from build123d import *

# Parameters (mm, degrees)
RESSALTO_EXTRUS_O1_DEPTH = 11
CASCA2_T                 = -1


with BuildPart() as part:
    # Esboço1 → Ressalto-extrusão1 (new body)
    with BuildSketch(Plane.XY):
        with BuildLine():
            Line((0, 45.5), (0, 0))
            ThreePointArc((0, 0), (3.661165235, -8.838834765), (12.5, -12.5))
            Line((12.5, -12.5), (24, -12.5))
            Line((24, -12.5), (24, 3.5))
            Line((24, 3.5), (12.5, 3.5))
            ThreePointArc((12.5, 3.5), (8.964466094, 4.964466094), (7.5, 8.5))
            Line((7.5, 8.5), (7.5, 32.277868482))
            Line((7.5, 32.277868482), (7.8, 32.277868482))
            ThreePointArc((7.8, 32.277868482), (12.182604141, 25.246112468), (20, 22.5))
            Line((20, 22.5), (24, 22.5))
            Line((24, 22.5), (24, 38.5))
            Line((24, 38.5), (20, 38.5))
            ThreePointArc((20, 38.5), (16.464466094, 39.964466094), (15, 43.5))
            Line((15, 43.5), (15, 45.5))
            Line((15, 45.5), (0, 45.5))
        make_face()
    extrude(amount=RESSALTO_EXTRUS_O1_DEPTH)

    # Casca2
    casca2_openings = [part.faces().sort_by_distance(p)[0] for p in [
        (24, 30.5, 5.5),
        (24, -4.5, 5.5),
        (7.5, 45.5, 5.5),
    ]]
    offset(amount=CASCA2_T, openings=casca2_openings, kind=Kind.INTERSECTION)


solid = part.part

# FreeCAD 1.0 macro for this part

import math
import FreeCAD as App
import Part
import Sketcher
from FreeCAD import Vector
Q = App.Units.Quantity


def faces_at(feature, points):
    """Names of the faces that lie closest to the given points."""
    faces = feature.Shape.Faces
    near = lambda p: min(range(len(faces)), key=lambda i: faces[i].distToShape(Part.Vertex(*p))[0])
    return sorted({f"Face{near(p) + 1}" for p in points})

doc = App.newDocument("Part")
body = doc.addObject("PartDesign::Body", "Body")

sketch1 = doc.addObject("Sketcher::SketchObject", "Sketch")
body.addObject(sketch1)
sketch1.AttachmentSupport = (doc.XY_Plane, [""])
sketch1.MapMode = "FlatFace"
sketch1.addGeometry(Part.LineSegment(Vector(0, 45.5, 0), Vector(0, 0, 0)), False)
sketch1.addGeometry(Part.ArcOfCircle(Part.Circle(Vector(12.5, 0, 0), Vector(0, 0, 1), 12.5), math.radians(180), math.radians(270)), False)
sketch1.addGeometry(Part.LineSegment(Vector(12.5, -12.5, 0), Vector(24, -12.5, 0)), False)
sketch1.addGeometry(Part.LineSegment(Vector(24, -12.5, 0), Vector(24, 3.5, 0)), False)
sketch1.addGeometry(Part.LineSegment(Vector(24, 3.5, 0), Vector(12.5, 3.5, 0)), False)
sketch1.addGeometry(Part.ArcOfCircle(Part.Circle(Vector(12.5, 8.5, 0), Vector(0, 0, 1), 5), math.radians(180), math.radians(270)), False)
sketch1.addGeometry(Part.LineSegment(Vector(7.5, 8.5, 0), Vector(7.5, 32.28, 0)), False)
sketch1.addGeometry(Part.LineSegment(Vector(7.5, 32.28, 0), Vector(7.8, 32.28, 0)), False)
sketch1.addGeometry(Part.ArcOfCircle(Part.Circle(Vector(20, 35, 0), Vector(0, 0, 1), 12.5), math.radians(-167), math.radians(-90)), False)
sketch1.addGeometry(Part.LineSegment(Vector(20, 22.5, 0), Vector(24, 22.5, 0)), False)
sketch1.addGeometry(Part.LineSegment(Vector(24, 22.5, 0), Vector(24, 38.5, 0)), False)
sketch1.addGeometry(Part.LineSegment(Vector(24, 38.5, 0), Vector(20, 38.5, 0)), False)
sketch1.addGeometry(Part.ArcOfCircle(Part.Circle(Vector(20, 43.5, 0), Vector(0, 0, 1), 5), math.radians(180), math.radians(270)), False)
sketch1.addGeometry(Part.LineSegment(Vector(15, 43.5, 0), Vector(15, 45.5, 0)), False)
sketch1.addGeometry(Part.LineSegment(Vector(15, 45.5, 0), Vector(0, 45.5, 0)), False)
sketch1.addConstraint(Sketcher.Constraint("Tangent", 0, 2, 1, 1))
sketch1.addConstraint(Sketcher.Constraint("Tangent", 1, 2, 2, 1))
sketch1.addConstraint(Sketcher.Constraint("Coincident", 2, 2, 3, 1))
sketch1.addConstraint(Sketcher.Constraint("Coincident", 3, 2, 4, 1))
sketch1.addConstraint(Sketcher.Constraint("Tangent", 4, 2, 5, 2))
sketch1.addConstraint(Sketcher.Constraint("Tangent", 5, 1, 6, 1))
sketch1.addConstraint(Sketcher.Constraint("Coincident", 6, 2, 7, 1))
sketch1.addConstraint(Sketcher.Constraint("Coincident", 7, 2, 8, 1))
sketch1.addConstraint(Sketcher.Constraint("Tangent", 8, 2, 9, 1))
sketch1.addConstraint(Sketcher.Constraint("Coincident", 9, 2, 10, 1))
sketch1.addConstraint(Sketcher.Constraint("Coincident", 10, 2, 11, 1))
sketch1.addConstraint(Sketcher.Constraint("Tangent", 11, 2, 12, 2))
sketch1.addConstraint(Sketcher.Constraint("Tangent", 12, 1, 13, 1))
sketch1.addConstraint(Sketcher.Constraint("Coincident", 13, 2, 14, 1))
sketch1.addConstraint(Sketcher.Constraint("Coincident", 14, 2, 0, 1))
sketch1.addConstraint(Sketcher.Constraint("Vertical", 0))
sketch1.addConstraint(Sketcher.Constraint("Horizontal", 2))
sketch1.addConstraint(Sketcher.Constraint("Vertical", 3))
sketch1.addConstraint(Sketcher.Constraint("Horizontal", 4))
sketch1.addConstraint(Sketcher.Constraint("Vertical", 6))
sketch1.addConstraint(Sketcher.Constraint("Horizontal", 7))
sketch1.addConstraint(Sketcher.Constraint("Horizontal", 9))
sketch1.addConstraint(Sketcher.Constraint("Vertical", 10))
sketch1.addConstraint(Sketcher.Constraint("Horizontal", 11))
sketch1.addConstraint(Sketcher.Constraint("Vertical", 13))
sketch1.addConstraint(Sketcher.Constraint("Horizontal", 14))
sketch1.addConstraint(Sketcher.Constraint("Coincident", 0, 2, -1, 1))
sketch1.addConstraint(Sketcher.Constraint("Equal", 1, 8))
sketch1.addConstraint(Sketcher.Constraint("Equal", 5, 12))
sketch1.addConstraint(Sketcher.Constraint("Vertical", 1, 3, 5, 3))
sketch1.addConstraint(Sketcher.Constraint("Vertical", 8, 3, 12, 3))
sketch1.addConstraint(Sketcher.Constraint("Vertical", 3, 2, 9, 2))
sketch1.addConstraint(Sketcher.Constraint("Equal", 3, 10))
sketch1.addConstraint(Sketcher.Constraint("Radius", 5, Q("5 mm")))
sketch1.addConstraint(Sketcher.Constraint("Radius", 1, Q("12.5 mm")))
sketch1.addConstraint(Sketcher.Constraint("DistanceX", 9, 1, 9, 2, Q("4 mm")))
sketch1.addConstraint(Sketcher.Constraint("DistanceX", 14, 2, 14, 1, Q("15 mm")))
sketch1.addConstraint(Sketcher.Constraint("DistanceY", 3, 1, 3, 2, Q("16 mm")))
sketch1.addConstraint(Sketcher.Constraint("DistanceY", 13, 1, 13, 2, Q("2 mm")))
sketch1.addConstraint(Sketcher.Constraint("DistanceX", 7, 1, 7, 2, Q("0.3 mm")))
sketch1.addConstraint(Sketcher.Constraint("DistanceY", 0, 2, 0, 1, Q("45.5 mm")))
pad1 = doc.addObject("PartDesign::Pad", "Pad")
body.addObject(pad1)
pad1.Profile = sketch1
pad1.Length = 11
doc.recompute()

thickness = doc.addObject("PartDesign::Thickness", "Thickness")
body.addObject(thickness)
thickness.Base = (pad1, faces_at(pad1, [(24, 30.5, 5.5), (24, -4.5, 5.5), (7.5, 45.5, 5.5)]))
thickness.Value = 1
thickness.Reversed = True
thickness.Join = "Intersection"

doc.recompute()
